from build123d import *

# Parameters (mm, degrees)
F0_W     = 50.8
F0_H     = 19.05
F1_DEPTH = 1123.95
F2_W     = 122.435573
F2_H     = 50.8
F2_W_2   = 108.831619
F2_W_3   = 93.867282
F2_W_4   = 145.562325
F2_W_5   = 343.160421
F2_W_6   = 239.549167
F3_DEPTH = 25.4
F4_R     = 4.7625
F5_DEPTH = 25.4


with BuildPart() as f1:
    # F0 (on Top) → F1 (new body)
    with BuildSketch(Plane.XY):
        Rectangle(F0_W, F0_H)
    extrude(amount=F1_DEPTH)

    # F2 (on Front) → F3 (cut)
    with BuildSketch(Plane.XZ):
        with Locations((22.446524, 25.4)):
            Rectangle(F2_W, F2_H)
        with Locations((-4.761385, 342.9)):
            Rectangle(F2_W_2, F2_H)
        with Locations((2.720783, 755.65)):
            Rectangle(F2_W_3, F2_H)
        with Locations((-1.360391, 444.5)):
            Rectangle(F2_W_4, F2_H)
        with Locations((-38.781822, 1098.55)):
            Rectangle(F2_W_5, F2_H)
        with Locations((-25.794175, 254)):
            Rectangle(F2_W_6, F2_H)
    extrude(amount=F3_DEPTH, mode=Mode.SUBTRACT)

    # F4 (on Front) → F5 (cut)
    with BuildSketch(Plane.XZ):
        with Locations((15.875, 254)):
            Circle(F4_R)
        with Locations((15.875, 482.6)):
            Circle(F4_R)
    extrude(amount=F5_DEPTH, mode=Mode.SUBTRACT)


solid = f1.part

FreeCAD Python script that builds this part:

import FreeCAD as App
import Part
import Sketcher
from FreeCAD import Vector
Q = App.Units.Quantity

doc = App.newDocument("Part")
body = doc.addObject("PartDesign::Body", "Body")

# Sketch on XY plane
sketch1 = body.newObject("Sketcher::SketchObject", "Sketch")
sketch1.AttachmentSupport = (doc.getObject("XY_Plane"), [""])
sketch1.MapMode = "FlatFace"
sketch1.addGeometry([
    Part.LineSegment(Vector(-25, 10, 0), Vector(-25, -10, 0)),
    Part.LineSegment(Vector(-25, -10, 0), Vector(25, -10, 0)),
    Part.LineSegment(Vector(25, -10, 0), Vector(25, 10, 0)),
    Part.LineSegment(Vector(25, 10, 0), Vector(-25, 10, 0)),
], False)
sketch1.addConstraint([
    Sketcher.Constraint("Coincident", 0, 2, 1, 1),
    Sketcher.Constraint("Coincident", 1, 2, 2, 1),
    Sketcher.Constraint("Coincident", 2, 2, 3, 1),
    Sketcher.Constraint("Coincident", 3, 2, 0, 1),
    Sketcher.Constraint("Vertical", 0),
    Sketcher.Constraint("Horizontal", 1),
    Sketcher.Constraint("Vertical", 2),
    Sketcher.Constraint("Horizontal", 3),
    Sketcher.Constraint("Symmetric", 0, 2, 2, 2, -1, 1),
    Sketcher.Constraint("DistanceX", 1, 1, 1, 2, Q("2 in")),
    Sketcher.Constraint("DistanceY", 0, 2, 0, 1, Q("0.75 in")),
])
pad1 = body.newObject("PartDesign::Pad", "Pad")
pad1.Profile = sketch1
pad1.Length = Q("44.25 in")

# Sketch on XZ plane
sketch2 = body.newObject("Sketcher::SketchObject", "Sketch001")
sketch2.AttachmentSupport = (doc.getObject("XZ_Plane"), [""])
sketch2.MapMode = "FlatFace"
sketch2.addGeometry([
    Part.LineSegment(Vector(-39, 51, 0), Vector(-39, 0, 0)),  # 0
    Part.LineSegment(Vector(-39, 0, 0), Vector(84, 0, 0)),  # 1
    Part.LineSegment(Vector(84, 0, 0), Vector(84, 51, 0)),  # 2
    Part.LineSegment(Vector(84, 51, 0), Vector(-39, 51, 0)),  # 3
    Part.LineSegment(Vector(-59, 368, 0), Vector(-59, 318, 0)),  # 4
    Part.LineSegment(Vector(-59, 318, 0), Vector(50, 318, 0)),  # 5
    Part.LineSegment(Vector(50, 318, 0), Vector(50, 368, 0)),  # 6
    Part.LineSegment(Vector(50, 368, 0), Vector(-59, 368, 0)),  # 7
    Part.LineSegment(Vector(-44, 781, 0), Vector(-44, 730, 0)),  # 8
    Part.LineSegment(Vector(-44, 730, 0), Vector(50, 730, 0)),  # 9
    Part.LineSegment(Vector(50, 730, 0), Vector(50, 781, 0)),  # 10
    Part.LineSegment(Vector(50, 781, 0), Vector(-44, 781, 0)),  # 11
    Part.LineSegment(Vector(-74, 470, 0), Vector(-74, 419, 0)),  # 12
    Part.LineSegment(Vector(-74, 419, 0), Vector(71, 419, 0)),  # 13
    Part.LineSegment(Vector(71, 419, 0), Vector(71, 470, 0)),  # 14
    Part.LineSegment(Vector(71, 470, 0), Vector(-74, 470, 0)),  # 15
    Part.LineSegment(Vector(-210, 1124, 0), Vector(-210, 1073, 0)),  # 16
    Part.LineSegment(Vector(-210, 1073, 0), Vector(133, 1073, 0)),  # 17
    Part.LineSegment(Vector(133, 1073, 0), Vector(133, 1124, 0)),  # 18
    Part.LineSegment(Vector(133, 1124, 0), Vector(-210, 1124, 0)),  # 19
    Part.LineSegment(Vector(-146, 279, 0), Vector(-146, 229, 0)),  # 20
    Part.LineSegment(Vector(-146, 229, 0), Vector(94, 229, 0)),  # 21
    Part.LineSegment(Vector(94, 229, 0), Vector(94, 279, 0)),  # 22
    Part.LineSegment(Vector(94, 279, 0), Vector(-146, 279, 0)),  # 23
], False)
sketch2.addConstraint([
    Sketcher.Constraint("Coincident", 0, 2, 1, 1),
    Sketcher.Constraint("Coincident", 1, 2, 2, 1),
    Sketcher.Constraint("Coincident", 2, 2, 3, 1),
    Sketcher.Constraint("Coincident", 3, 2, 0, 1),
    Sketcher.Constraint("Coincident", 4, 2, 5, 1),
    Sketcher.Constraint("Coincident", 5, 2, 6, 1),
    Sketcher.Constraint("Coincident", 6, 2, 7, 1),
    Sketcher.Constraint("Coincident", 7, 2, 4, 1),
    Sketcher.Constraint("Coincident", 8, 2, 9, 1),
    Sketcher.Constraint("Coincident", 9, 2, 10, 1),
    Sketcher.Constraint("Coincident", 10, 2, 11, 1),
    Sketcher.Constraint("Coincident", 11, 2, 8, 1),
    Sketcher.Constraint("Coincident", 12, 2, 13, 1),
    Sketcher.Constraint("Coincident", 13, 2, 14, 1),
    Sketcher.Constraint("Coincident", 14, 2, 15, 1),
    Sketcher.Constraint("Coincident", 15, 2, 12, 1),
    Sketcher.Constraint("Coincident", 16, 2, 17, 1),
    Sketcher.Constraint("Coincident", 17, 2, 18, 1),
    Sketcher.Constraint("Coincident", 18, 2, 19, 1),
    Sketcher.Constraint("Coincident", 19, 2, 16, 1),
    Sketcher.Constraint("Coincident", 20, 2, 21, 1),
    Sketcher.Constraint("Coincident", 21, 2, 22, 1),
    Sketcher.Constraint("Coincident", 22, 2, 23, 1),
    Sketcher.Constraint("Coincident", 23, 2, 20, 1),
    Sketcher.Constraint("Vertical", 0),
    Sketcher.Constraint("Horizontal", 1),
    Sketcher.Constraint("Vertical", 2),
    Sketcher.Constraint("Horizontal", 3),
    Sketcher.Constraint("Vertical", 4),
    Sketcher.Constraint("Horizontal", 5),
    Sketcher.Constraint("Vertical", 6),
    Sketcher.Constraint("Horizontal", 7),
    Sketcher.Constraint("Vertical", 8),
    Sketcher.Constraint("Horizontal", 9),
    Sketcher.Constraint("Vertical", 10),
    Sketcher.Constraint("Horizontal", 11),
    Sketcher.Constraint("Vertical", 12),
    Sketcher.Constraint("Horizontal", 13),
    Sketcher.Constraint("Vertical", 14),
    Sketcher.Constraint("Horizontal", 15),
    Sketcher.Constraint("Vertical", 16),
    Sketcher.Constraint("Horizontal", 17),
    Sketcher.Constraint("Vertical", 18),
    Sketcher.Constraint("Horizontal", 19),
    Sketcher.Constraint("Vertical", 20),
    Sketcher.Constraint("Horizontal", 21),
    Sketcher.Constraint("Vertical", 22),
    Sketcher.Constraint("Horizontal", 23),
    Sketcher.Constraint("PointOnObject", 0, 2, -1),
    Sketcher.Constraint("Vertical", 6, 2, 9, 2),
    Sketcher.Constraint("Equal", 2, 4),
    Sketcher.Constraint("Equal", 6, 8),
    Sketcher.Constraint("Equal", 10, 12),
    Sketcher.Constraint("Equal", 14, 16),
    Sketcher.Constraint("Equal", 18, 20),
    Sketcher.Constraint("DistanceY", 0, 2, 0, 1, Q("2 in")),
    Sketcher.Constraint("DistanceY", -1, 1, 20, 2, Q("9 in")),
    Sketcher.Constraint("DistanceY", 7, 2, 12, 2, Q("2 in")),
    Sketcher.Constraint("DistanceY", -1, 1, 4, 2, Q("12.5 in")),
    Sketcher.Constraint("DistanceY", 11, 2, 16, 2, Q("11.5 in")),
    Sketcher.Constraint("DistanceY", -1, 1, 8, 2, Q("28.75 in")),
    Sketcher.Constraint("DistanceX", 13, 1, 13, 2, Q("5.7308002 in")),
    Sketcher.Constraint("DistanceX", 5, 1, 5, 2, 108.831619),
    Sketcher.Constraint("DistanceX", 9, 1, 9, 2, 93.867282),
    Sketcher.Constraint("DistanceX", 17, 1, 17, 2, 343.160421),
    Sketcher.Constraint("DistanceX", 1, 1, 1, 2, 122.435573),
    Sketcher.Constraint("DistanceX", 21, 1, 21, 2, 239.549167),
    Sketcher.Constraint("DistanceX", -1, 1, 1, 2, 83.66431),
    Sketcher.Constraint("DistanceX", -1, 1, 13, 2, 71.420772),
    Sketcher.Constraint("DistanceX", -1, 1, 17, 2, 132.798388),
    Sketcher.Constraint("DistanceX", 20, 2, -1, 1, 145.568759),
    Sketcher.Constraint("DistanceX", 4, 2, 3, 2, 20.405932),
])
pocket1 = body.newObject("PartDesign::Pocket", "Pocket")
pocket1.Profile = sketch2
pocket1.Length = Q("1 in")
pocket1.Reversed = True

# Sketch on XZ plane
sketch3 = body.newObject("Sketcher::SketchObject", "Sketch002")
sketch3.AttachmentSupport = (doc.getObject("XZ_Plane"), [""])
sketch3.MapMode = "FlatFace"
sketch3.addGeometry([
    Part.Circle(Vector(15.9, 254, 0), Vector(0, 0, 1), 4.8),
    Part.Circle(Vector(15.9, 482.6, 0), Vector(0, 0, 1), 4.8),
], False)
sketch3.addConstraint([
    Sketcher.Constraint("Equal", 0, 1),
    Sketcher.Constraint("Vertical", 0, 3, 1, 3),
    Sketcher.Constraint("Diameter", 0, Q("0.375 in")),
    Sketcher.Constraint("DistanceY", -1, 1, 0, 3, Q("10 in")),
    Sketcher.Constraint("DistanceY", -1, 1, 1, 3, Q("19 in")),
    Sketcher.Constraint("DistanceX", -1, 1, 0, 3, Q("0.625 in")),
])
pocket2 = body.newObject("PartDesign::Pocket", "Pocket001")
pocket2.Profile = sketch3
pocket2.Length = Q("1 in")
pocket2.Reversed = True

doc.recompute()
